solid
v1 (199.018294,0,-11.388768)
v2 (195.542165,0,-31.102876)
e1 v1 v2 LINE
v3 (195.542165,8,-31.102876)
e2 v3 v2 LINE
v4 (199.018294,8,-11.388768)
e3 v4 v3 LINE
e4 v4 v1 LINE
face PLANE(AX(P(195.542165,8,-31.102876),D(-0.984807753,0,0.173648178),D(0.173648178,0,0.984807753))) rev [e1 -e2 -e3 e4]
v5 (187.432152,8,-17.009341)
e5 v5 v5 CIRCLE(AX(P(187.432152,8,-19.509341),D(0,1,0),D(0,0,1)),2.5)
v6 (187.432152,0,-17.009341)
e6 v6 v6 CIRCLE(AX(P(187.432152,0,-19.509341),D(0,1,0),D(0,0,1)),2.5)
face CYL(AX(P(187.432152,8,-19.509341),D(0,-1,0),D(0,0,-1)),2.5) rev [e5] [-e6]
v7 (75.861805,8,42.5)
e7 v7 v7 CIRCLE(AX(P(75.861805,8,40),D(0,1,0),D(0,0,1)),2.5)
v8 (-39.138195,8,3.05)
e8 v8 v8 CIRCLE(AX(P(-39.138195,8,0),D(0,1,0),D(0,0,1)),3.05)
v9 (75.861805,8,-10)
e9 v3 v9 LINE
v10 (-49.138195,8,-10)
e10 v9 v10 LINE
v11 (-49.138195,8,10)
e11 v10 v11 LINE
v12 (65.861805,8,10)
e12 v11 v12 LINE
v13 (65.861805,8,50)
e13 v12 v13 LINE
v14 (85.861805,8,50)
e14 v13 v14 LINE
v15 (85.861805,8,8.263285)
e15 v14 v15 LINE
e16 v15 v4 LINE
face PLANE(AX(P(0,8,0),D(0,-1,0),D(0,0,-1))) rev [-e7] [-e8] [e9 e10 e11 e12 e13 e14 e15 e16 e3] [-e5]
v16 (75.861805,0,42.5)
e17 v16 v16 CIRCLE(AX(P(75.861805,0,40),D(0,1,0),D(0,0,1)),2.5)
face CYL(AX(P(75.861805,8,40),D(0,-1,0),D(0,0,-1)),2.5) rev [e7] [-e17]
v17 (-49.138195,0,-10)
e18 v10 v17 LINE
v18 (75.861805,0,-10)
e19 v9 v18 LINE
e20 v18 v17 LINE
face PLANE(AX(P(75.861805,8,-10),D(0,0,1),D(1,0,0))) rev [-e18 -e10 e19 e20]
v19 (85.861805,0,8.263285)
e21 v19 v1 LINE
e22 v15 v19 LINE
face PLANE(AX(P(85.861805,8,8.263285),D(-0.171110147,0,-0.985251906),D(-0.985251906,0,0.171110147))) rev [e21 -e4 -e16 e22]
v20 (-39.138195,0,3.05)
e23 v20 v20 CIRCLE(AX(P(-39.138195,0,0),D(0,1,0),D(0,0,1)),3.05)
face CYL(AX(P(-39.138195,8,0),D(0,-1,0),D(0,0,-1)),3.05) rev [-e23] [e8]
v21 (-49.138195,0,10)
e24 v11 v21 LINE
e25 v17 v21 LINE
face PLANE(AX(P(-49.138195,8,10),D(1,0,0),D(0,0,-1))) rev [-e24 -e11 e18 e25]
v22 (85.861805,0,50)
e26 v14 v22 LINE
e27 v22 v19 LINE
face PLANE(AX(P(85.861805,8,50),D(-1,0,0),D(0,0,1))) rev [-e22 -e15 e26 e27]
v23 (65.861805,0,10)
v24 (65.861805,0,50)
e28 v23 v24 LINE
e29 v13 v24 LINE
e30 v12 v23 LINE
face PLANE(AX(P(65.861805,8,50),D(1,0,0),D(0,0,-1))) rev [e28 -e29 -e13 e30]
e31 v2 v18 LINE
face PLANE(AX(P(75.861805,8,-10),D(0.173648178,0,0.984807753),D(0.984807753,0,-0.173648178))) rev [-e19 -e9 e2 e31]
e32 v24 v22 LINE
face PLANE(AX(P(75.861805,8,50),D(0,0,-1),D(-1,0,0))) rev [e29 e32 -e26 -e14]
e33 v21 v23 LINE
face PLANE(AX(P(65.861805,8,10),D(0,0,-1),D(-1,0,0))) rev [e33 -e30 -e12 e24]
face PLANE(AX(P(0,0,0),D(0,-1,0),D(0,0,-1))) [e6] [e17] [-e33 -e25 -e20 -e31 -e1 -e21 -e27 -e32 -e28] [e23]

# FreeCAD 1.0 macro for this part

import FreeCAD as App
import Part
import Sketcher
from FreeCAD import Vector
Q = App.Units.Quantity


def add_polygon(sketch, points):
    """Adds a closed chain of lines whose ends are joined by coincident constraints."""
    first, n = sketch.GeometryCount, len(points)
    for a, b in zip(points, points[1:] + points[:1]):
        sketch.addGeometry(Part.LineSegment(App.Vector(*a, 0), App.Vector(*b, 0)), False)
    for i in range(n):
        sketch.addConstraint(Sketcher.Constraint("Coincident", first + i, 2, first + (i + 1) % n, 1))

doc = App.newDocument("Part")
params = doc.addObject("Spreadsheet::Sheet", "Params")
for row, (alias, value) in enumerate([
    ("sketch1_diameter", "5 mm"),
    ("sketch1_diameter2", "6.1 mm"),
    ("sketch1_width", "125 mm"),
    ("sketch1_width2", "115 mm"),
    ("sketch1_width3", "20 mm"),
    ("pad1_length", "8 mm"),
], start=1):
    params.set(f"A{row}", alias)
    params.set(f"B{row}", "=" + value)
    params.setAlias(f"B{row}", alias)

body = doc.addObject("PartDesign::Body", "Body")

sketch1 = body.newObject("Sketcher::SketchObject", "Sketch")
sketch1.AttachmentSupport = (doc.getObject("XZ_Plane"), [""])
sketch1.MapMode = "FlatFace"
add_polygon(sketch1, [(195.542165, -31.102876), (75.861805, -10), (-49.138195, -10), (-49.138195, 10), (65.861805, 10), (65.861805, 50), (85.861805, 50), (85.861805, 8.263285), (199.018294, -11.388768)])
sketch1.addGeometry(Part.Circle(Vector(75.861805, 40, 0), Vector(0, 0, 1), 2.5), False)
sketch1.addGeometry(Part.Circle(Vector(187.432152, -19.509341, 0), Vector(0, 0, 1), 2.5), False)
sketch1.addGeometry(Part.Circle(Vector(-39.138195, 0, 0), Vector(0, 0, 1), 3.05), False)
sketch1.addConstraint([
    Sketcher.Constraint("Horizontal", 1),
    Sketcher.Constraint("Vertical", 2),
    Sketcher.Constraint("Horizontal", 3),
    Sketcher.Constraint("Vertical", 4),
    Sketcher.Constraint("Horizontal", 5),
    Sketcher.Constraint("Vertical", 6),
    Sketcher.Constraint("Equal", 9, 10),
    Sketcher.Constraint("PointOnObject", 11, 3, -1),
    Sketcher.Constraint("Perpendicular", 0, 8),
    Sketcher.Constraint("Vertical", 9, 3, 0, 2),
    Sketcher.Constraint("Equal", 5, 2),
    Sketcher.Constraint("Diameter", 9, 5.0),
    Sketcher.Constraint("Diameter", 11, 6.1),
    Sketcher.Constraint("DistanceX", 1, 2, 1, 1, 125.0),
    Sketcher.Constraint("DistanceX", 3, 1, 3, 2, 115.0),
    Sketcher.Constraint("DistanceX", 5, 1, 5, 2, 20.0),
    Sketcher.Constraint("DistanceY", 4, 1, 4, 2, 40.0),
    Sketcher.Constraint("Angle", 0, Q("170 deg")),
    Sketcher.Constraint("DistanceY", -1, 1, 9, 3, 40.0),
    Sketcher.Constraint("DistanceY", 0, 2, -1, 1, 10.0),
    Sketcher.Constraint("DistanceX", 11, 3, 9, 3, 115.0),
    Sketcher.Constraint("Distance", 0, 121.526622),
    Sketcher.Constraint("Distance", 7, 114.850311),
    Sketcher.Constraint("Distance", 8, 20.01823),
    Sketcher.Constraint("DistanceX", -1, 1, 10, 3, 187.432152),
    Sketcher.Constraint("DistanceY", 10, 3, -1, 1, 19.509341),
    Sketcher.Constraint("DistanceX", -1, 1, 9, 3, 75.861805),
])
sketch1.setExpression("Constraints[20]", "Params.sketch1_diameter")
sketch1.setExpression("Constraints[21]", "Params.sketch1_diameter2")
sketch1.setExpression("Constraints[22]", "Params.sketch1_width")
sketch1.setExpression("Constraints[23]", "Params.sketch1_width2")
sketch1.setExpression("Constraints[24]", "Params.sketch1_width3")
pad1 = body.newObject("PartDesign::Pad", "Pad")
pad1.Profile = sketch1
pad1.setExpression("Length", "Params.pad1_length")
pad1.Reversed = True

doc.recompute()
